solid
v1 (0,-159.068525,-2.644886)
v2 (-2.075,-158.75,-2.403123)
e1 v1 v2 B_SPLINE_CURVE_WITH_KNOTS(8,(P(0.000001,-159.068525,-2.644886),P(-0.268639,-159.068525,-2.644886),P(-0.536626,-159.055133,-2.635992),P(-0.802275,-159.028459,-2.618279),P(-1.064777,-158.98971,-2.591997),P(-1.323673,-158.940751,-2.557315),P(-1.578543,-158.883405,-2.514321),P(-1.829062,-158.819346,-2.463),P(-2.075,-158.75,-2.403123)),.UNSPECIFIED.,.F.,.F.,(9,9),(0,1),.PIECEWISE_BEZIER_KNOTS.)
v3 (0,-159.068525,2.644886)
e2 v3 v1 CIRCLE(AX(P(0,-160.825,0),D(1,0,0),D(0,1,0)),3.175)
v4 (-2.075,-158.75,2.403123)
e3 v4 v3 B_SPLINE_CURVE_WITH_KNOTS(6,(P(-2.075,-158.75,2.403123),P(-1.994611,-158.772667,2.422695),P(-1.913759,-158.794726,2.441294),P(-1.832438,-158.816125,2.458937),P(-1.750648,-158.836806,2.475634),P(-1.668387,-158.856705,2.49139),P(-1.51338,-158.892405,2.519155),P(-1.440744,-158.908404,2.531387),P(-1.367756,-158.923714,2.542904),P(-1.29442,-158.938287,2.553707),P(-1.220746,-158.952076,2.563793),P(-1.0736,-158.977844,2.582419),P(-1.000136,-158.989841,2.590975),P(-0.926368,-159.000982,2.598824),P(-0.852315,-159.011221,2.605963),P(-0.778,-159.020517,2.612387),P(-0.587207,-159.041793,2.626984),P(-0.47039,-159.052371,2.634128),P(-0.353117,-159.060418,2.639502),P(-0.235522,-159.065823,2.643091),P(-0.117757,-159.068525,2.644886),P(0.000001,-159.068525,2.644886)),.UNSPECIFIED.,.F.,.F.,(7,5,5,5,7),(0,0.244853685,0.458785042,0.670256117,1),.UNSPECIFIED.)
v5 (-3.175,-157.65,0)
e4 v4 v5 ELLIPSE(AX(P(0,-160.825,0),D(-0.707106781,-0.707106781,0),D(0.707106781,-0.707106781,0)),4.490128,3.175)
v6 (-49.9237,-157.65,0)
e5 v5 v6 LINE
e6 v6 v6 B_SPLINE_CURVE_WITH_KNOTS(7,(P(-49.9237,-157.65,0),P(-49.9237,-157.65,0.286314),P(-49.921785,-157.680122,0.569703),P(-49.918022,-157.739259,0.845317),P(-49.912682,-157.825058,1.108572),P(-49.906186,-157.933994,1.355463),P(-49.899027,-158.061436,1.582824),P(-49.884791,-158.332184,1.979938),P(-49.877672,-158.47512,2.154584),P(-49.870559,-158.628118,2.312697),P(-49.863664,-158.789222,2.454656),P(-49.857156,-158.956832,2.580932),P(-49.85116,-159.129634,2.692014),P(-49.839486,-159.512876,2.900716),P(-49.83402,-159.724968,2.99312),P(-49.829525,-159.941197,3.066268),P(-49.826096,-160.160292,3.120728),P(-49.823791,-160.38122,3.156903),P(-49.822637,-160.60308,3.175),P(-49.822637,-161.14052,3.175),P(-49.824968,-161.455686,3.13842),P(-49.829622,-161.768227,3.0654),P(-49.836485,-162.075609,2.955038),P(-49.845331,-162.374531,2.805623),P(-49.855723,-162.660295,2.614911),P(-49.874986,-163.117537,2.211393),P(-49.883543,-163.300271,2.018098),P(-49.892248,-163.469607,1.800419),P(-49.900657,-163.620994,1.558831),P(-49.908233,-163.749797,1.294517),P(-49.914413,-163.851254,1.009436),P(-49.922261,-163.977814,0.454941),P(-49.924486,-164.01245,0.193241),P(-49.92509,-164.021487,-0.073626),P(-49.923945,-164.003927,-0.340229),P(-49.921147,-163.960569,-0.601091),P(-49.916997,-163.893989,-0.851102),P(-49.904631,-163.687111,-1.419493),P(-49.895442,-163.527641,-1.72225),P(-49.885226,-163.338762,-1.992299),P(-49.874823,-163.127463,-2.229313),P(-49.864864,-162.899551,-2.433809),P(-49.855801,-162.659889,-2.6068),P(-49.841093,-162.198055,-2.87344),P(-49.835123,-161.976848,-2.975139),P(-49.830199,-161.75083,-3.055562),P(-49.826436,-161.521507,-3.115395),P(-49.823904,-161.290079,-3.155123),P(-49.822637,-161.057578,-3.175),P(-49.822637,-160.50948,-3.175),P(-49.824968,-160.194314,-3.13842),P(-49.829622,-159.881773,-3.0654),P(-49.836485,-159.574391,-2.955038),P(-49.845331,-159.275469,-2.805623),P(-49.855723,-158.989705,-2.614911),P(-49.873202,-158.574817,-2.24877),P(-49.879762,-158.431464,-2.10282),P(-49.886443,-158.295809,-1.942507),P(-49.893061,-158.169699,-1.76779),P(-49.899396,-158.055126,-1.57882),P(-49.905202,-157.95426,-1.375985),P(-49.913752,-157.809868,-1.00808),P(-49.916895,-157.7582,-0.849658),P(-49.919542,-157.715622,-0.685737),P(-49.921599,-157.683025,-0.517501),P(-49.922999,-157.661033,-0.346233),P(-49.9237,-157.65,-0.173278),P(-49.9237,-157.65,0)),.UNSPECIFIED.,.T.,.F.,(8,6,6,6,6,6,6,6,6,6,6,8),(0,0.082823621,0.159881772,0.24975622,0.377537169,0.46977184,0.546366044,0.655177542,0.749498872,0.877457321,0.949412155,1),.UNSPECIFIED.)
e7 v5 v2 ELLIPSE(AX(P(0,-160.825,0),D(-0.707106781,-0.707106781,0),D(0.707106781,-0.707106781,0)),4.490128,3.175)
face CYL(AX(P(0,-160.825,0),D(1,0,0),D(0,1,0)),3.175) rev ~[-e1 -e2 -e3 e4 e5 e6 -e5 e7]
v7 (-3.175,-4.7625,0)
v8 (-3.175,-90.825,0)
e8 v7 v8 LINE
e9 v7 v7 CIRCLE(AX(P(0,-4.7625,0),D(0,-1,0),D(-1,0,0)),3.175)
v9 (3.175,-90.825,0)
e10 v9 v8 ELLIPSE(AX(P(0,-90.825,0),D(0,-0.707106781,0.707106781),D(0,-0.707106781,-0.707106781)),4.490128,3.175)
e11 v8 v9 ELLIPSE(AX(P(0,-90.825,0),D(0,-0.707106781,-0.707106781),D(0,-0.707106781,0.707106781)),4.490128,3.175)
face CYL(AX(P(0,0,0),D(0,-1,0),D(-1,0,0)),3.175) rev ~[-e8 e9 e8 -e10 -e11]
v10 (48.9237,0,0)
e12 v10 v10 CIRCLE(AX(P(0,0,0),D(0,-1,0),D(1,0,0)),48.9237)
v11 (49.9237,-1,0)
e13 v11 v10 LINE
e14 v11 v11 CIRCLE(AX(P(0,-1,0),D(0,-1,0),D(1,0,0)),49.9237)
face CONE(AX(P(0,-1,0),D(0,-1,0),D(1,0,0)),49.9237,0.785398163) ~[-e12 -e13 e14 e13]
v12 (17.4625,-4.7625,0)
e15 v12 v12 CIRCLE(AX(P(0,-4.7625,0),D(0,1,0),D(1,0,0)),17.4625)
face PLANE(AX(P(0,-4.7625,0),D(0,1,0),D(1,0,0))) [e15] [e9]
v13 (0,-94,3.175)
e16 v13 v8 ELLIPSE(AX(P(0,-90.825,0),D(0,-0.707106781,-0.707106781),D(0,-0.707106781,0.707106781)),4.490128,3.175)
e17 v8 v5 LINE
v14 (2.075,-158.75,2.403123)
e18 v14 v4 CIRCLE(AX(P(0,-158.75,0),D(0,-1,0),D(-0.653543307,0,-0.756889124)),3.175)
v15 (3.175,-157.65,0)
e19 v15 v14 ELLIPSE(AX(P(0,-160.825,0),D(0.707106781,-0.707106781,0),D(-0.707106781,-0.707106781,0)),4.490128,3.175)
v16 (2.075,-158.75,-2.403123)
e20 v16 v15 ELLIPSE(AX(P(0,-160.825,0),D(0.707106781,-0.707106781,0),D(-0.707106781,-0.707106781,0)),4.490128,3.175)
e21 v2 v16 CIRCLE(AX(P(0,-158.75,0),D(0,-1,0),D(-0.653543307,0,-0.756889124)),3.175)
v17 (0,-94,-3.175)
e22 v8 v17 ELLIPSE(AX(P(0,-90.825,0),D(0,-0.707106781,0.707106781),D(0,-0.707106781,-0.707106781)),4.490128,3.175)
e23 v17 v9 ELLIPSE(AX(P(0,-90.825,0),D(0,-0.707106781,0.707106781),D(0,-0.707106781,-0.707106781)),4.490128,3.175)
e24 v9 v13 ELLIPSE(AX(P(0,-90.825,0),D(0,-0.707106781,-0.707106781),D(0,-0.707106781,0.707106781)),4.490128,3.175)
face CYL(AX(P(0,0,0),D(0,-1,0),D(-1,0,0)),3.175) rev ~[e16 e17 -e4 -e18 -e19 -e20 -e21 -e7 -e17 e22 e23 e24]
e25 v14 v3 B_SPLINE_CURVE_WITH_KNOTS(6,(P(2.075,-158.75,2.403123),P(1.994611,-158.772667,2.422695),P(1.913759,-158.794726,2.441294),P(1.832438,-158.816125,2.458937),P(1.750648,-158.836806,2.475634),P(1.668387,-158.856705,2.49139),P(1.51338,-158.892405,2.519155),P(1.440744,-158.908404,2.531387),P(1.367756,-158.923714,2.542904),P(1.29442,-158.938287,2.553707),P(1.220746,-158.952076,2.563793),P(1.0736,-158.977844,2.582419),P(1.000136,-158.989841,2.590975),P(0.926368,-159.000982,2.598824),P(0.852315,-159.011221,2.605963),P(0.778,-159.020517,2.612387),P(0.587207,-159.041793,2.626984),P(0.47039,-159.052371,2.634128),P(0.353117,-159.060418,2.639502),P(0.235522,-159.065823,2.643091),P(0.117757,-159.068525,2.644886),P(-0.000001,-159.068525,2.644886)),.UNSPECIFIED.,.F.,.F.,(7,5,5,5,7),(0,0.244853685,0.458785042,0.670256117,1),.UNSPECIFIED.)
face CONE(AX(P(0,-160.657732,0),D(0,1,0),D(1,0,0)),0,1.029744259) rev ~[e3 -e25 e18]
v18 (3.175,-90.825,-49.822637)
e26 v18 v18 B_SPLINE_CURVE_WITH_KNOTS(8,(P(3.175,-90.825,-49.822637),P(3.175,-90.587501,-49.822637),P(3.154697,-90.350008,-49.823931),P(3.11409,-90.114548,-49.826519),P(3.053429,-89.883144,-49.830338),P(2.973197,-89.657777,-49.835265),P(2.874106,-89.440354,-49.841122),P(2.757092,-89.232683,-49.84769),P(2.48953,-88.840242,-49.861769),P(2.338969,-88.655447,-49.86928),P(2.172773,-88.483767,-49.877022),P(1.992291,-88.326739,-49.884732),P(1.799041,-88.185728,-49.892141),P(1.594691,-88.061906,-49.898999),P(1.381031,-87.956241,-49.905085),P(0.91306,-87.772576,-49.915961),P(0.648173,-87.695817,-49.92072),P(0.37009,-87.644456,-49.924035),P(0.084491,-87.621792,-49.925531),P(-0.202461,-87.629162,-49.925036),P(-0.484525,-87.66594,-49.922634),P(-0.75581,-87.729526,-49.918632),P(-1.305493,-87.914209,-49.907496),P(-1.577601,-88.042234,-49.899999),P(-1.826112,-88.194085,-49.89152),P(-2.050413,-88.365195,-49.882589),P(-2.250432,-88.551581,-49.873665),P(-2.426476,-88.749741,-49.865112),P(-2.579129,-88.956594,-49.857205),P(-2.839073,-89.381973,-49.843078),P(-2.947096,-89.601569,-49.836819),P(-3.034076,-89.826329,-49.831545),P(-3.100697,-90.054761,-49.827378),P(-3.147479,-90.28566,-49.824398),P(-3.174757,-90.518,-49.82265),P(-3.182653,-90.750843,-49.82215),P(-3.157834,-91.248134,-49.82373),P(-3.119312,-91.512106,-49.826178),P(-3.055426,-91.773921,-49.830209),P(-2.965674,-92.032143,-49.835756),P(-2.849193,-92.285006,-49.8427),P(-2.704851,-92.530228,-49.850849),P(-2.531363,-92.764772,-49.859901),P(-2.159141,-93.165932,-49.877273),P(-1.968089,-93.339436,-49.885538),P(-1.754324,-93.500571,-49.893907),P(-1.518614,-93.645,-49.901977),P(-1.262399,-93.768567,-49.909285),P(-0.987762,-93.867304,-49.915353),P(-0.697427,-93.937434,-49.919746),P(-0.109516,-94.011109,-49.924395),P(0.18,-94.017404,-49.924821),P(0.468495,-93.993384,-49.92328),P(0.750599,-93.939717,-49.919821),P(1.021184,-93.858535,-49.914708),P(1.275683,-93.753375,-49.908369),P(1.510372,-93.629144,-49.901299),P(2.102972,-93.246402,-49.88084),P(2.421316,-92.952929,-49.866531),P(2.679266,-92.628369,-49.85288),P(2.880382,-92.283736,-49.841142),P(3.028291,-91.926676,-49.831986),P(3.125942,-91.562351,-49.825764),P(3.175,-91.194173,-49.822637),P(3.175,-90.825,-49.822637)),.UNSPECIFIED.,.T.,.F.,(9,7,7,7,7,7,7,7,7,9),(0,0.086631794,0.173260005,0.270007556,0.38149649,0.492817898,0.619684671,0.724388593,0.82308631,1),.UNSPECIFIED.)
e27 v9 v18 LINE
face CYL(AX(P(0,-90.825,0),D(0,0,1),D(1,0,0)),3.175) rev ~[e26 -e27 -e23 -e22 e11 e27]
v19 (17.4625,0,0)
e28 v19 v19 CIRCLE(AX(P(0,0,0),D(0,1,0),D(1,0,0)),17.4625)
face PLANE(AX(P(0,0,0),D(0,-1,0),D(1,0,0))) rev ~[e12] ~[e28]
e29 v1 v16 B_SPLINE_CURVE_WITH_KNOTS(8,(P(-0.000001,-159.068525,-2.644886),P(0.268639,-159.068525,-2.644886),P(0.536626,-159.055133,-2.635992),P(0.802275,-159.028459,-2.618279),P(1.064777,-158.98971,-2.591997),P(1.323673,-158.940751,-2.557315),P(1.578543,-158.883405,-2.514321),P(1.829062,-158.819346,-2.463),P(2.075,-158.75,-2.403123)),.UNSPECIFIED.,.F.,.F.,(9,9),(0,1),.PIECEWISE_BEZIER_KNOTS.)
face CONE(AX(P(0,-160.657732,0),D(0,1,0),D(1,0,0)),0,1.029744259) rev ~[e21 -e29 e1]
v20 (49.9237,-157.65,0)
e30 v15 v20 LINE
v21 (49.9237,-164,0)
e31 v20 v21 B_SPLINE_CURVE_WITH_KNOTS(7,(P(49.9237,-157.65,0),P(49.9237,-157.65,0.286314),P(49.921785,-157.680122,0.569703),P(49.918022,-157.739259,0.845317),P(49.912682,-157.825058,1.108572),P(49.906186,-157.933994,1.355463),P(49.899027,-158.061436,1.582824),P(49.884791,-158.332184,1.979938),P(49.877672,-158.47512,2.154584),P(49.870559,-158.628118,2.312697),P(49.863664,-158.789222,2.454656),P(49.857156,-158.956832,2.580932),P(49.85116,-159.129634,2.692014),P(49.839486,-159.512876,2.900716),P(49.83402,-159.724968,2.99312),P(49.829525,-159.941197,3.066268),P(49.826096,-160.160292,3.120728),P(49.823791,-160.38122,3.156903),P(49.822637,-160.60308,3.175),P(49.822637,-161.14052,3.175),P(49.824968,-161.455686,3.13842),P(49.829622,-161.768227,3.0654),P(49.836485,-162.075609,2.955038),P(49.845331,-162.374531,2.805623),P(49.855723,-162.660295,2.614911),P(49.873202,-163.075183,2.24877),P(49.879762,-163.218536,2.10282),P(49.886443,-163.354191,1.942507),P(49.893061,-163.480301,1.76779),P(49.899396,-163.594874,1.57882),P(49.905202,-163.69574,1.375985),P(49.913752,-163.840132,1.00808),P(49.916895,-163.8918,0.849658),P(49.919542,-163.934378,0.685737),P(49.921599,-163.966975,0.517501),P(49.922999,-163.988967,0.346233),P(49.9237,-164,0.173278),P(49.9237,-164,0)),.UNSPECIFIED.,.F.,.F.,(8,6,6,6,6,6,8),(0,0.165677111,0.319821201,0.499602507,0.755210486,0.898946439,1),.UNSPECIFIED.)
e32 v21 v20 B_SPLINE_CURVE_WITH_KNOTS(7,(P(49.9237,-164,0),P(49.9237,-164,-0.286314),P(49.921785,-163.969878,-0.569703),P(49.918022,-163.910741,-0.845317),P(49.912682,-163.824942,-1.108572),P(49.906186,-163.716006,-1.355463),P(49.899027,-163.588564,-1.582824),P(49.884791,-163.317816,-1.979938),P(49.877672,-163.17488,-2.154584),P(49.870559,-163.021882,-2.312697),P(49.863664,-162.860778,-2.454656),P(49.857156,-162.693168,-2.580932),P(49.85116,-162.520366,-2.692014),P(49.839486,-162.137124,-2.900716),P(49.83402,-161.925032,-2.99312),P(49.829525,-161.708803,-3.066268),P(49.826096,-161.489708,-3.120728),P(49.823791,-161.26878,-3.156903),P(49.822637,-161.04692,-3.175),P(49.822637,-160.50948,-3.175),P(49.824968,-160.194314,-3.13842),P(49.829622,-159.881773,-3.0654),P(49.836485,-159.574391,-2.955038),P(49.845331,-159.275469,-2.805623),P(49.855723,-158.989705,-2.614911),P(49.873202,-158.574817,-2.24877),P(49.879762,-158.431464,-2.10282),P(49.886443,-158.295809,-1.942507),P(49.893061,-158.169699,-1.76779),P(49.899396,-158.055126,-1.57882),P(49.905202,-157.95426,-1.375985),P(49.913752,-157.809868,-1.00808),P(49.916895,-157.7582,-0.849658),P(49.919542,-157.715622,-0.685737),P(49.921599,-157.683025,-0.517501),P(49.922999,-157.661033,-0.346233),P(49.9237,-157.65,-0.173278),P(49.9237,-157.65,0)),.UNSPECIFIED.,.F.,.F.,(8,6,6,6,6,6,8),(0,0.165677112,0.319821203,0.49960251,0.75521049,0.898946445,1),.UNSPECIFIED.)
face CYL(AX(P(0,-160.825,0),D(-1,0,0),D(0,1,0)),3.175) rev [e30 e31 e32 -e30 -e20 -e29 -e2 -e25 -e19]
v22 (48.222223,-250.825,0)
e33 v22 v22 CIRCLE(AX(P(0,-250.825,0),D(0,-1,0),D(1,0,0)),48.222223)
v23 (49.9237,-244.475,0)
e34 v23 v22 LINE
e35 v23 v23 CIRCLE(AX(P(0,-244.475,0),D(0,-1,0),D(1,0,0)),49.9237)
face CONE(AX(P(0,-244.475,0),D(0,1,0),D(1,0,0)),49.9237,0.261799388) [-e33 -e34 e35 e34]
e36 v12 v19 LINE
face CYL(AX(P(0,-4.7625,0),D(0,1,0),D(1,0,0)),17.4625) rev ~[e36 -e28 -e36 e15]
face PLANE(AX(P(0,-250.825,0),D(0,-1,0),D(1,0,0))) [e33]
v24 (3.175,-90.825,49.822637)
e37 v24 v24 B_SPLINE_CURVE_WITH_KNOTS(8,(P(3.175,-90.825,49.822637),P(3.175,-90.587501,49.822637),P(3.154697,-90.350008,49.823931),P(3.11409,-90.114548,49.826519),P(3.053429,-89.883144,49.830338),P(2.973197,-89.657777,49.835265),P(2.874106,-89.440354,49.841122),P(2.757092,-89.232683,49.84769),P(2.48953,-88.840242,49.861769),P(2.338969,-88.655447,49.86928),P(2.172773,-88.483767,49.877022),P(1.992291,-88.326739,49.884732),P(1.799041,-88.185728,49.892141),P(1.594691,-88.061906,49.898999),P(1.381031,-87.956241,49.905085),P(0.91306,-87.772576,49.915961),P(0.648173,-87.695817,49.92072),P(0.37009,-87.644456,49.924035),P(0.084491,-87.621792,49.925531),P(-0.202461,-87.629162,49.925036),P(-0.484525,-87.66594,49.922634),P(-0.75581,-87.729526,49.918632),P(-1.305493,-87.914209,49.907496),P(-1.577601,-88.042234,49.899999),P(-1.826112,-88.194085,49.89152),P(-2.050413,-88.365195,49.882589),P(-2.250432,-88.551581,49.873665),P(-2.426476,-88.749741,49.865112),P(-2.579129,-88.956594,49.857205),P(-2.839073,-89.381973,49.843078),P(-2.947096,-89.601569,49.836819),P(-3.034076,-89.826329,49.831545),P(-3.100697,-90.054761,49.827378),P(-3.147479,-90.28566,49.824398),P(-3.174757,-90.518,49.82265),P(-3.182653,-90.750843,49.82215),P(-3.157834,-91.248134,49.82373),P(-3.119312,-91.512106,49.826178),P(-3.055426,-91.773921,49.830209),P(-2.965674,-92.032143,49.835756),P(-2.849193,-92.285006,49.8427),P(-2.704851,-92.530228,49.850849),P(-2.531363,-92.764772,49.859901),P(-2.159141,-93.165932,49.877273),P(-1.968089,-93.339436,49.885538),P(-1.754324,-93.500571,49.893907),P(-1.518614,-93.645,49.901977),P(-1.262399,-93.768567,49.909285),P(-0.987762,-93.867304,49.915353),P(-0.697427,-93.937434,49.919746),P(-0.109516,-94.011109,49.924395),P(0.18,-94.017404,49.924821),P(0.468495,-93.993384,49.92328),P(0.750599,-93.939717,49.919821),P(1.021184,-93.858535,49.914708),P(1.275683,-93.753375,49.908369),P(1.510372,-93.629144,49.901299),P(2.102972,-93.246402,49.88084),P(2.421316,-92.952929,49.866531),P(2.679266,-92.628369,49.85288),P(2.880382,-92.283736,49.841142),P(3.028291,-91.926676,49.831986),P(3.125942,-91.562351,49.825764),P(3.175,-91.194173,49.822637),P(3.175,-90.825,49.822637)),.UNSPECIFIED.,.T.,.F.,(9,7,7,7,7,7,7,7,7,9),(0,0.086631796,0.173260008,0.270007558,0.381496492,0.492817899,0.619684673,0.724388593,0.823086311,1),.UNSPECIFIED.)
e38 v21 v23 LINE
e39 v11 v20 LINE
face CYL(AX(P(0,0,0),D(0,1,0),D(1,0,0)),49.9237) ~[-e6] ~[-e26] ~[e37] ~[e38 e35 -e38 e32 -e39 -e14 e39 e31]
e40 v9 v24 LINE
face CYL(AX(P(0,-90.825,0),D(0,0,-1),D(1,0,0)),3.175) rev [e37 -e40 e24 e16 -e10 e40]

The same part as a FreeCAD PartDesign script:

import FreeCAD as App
import Part
import Sketcher

V = App.Vector
Q = App.Units.Quantity


def edges_at(feature, points):
    """Names of the edges that pass closest to the given points."""
    edges = feature.Shape.Edges
    near = lambda p: min(range(len(edges)), key=lambda i: edges[i].distToShape(Part.Vertex(*p))[0])
    return sorted({f"Edge{near(p) + 1}" for p in points})

doc = App.newDocument("Part")
params = doc.addObject("Spreadsheet::Sheet", "Params")
for row, (alias, value) in enumerate([
    ("sketch1_diameter", "3.931 in"),
    ("pad1_length", "9.875 in"),
    ("chamfer_size", "0.25 in"),
    ("chamfer_size2", "1.701477 mm"),
    ("sketch2_diameter", "0.25 in"),
    ("hole_diameter", "0.25 in"),
    ("hole_depth", "6.25 in"),
    ("hole_cbore_diameter", "1.375 in"),
    ("hole_cbore_depth", "0.1875 in"),
    ("sketch3_diameter", "0.25 in"),
    ("sketch4_diameter", "0.25 in"),
    ("chamfer2_size", "1 mm"),
], start=1):
    params.set(f"A{row}", alias)
    params.set(f"B{row}", "=" + value)
    params.setAlias(f"B{row}", alias)

body = doc.addObject("PartDesign::Body", "Body")

sketch1 = body.newObject("Sketcher::SketchObject", "Sketch")
sketch1.AttachmentSupport = (doc.getObject("XZ_Plane"), [""])
sketch1.MapMode = "FlatFace"
sketch1.addGeometry(Part.Circle(V(0, 0, 0), V(0, 0, 1), 49.9237), False)
sketch1.addConstraint(Sketcher.Constraint("Coincident", 0, 3, -1, 1))
sketch1.addConstraint(Sketcher.Constraint("Diameter", 0, Q("3.931 in")))
sketch1.setExpression("Constraints[1]", "Params.sketch1_diameter")
pad1 = body.newObject("PartDesign::Pad", "Pad")
pad1.Profile = sketch1
pad1.setExpression("Length", "Params.pad1_length")
doc.recompute()

chamfer = body.newObject("PartDesign::Chamfer", "Chamfer")
chamfer.Base = (pad1, edges_at(pad1, [(-49.924, -250.825, 0)]))
chamfer.ChamferType = "Two distances"
chamfer.setExpression("Size", "Params.chamfer_size")
chamfer.setExpression("Size2", "Params.chamfer_size2")

sketch2 = body.newObject("Sketcher::SketchObject", "Sketch001")
sketch2.AttachmentSupport = (doc.getObject("XZ_Plane"), [""])
sketch2.MapMode = "FlatFace"
sketch2.addGeometry(Part.Circle(V(0, 0, 0), V(0, 0, 1), 3.175), False)
sketch2.addConstraint(Sketcher.Constraint("Coincident", 0, 3, -1, 1))
sketch2.addConstraint(Sketcher.Constraint("Diameter", 0, Q("0.25 in")))
sketch2.setExpression("Constraints[1]", "Params.sketch2_diameter")
doc.recompute()
hole = body.newObject("PartDesign::Hole", "Hole")
hole.Profile = sketch2
hole.ThreadType = "None"
hole.setExpression("Diameter", "Params.hole_diameter")
hole.DepthType = "Dimension"
hole.setExpression("Depth", "Params.hole_depth")
hole.DrillPoint = "Angled"
hole.DrillPointAngle = 118
hole.HoleCutType = "Counterbore"
hole.setExpression("HoleCutDiameter", "Params.hole_cbore_diameter")
hole.setExpression("HoleCutDepth", "Params.hole_cbore_depth")
hole.Reversed = True

sketch3 = body.newObject("Sketcher::SketchObject", "Sketch002")
sketch3.AttachmentSupport = (doc.getObject("YZ_Plane"), [""])
sketch3.MapMode = "FlatFace"
sketch3.addGeometry(Part.Circle(V(-160.825, 0, 0), V(0, 0, 1), 3.175), False)
sketch3.addConstraint(Sketcher.Constraint("PointOnObject", 0, 3, -1))
sketch3.addConstraint(Sketcher.Constraint("Diameter", 0, Q("0.25 in")))
sketch3.addConstraint(Sketcher.Constraint("DistanceX", 0, 3, -1, 1, Q("160.825 mm")))
sketch3.setExpression("Constraints[1]", "Params.sketch3_diameter")
pocket1 = body.newObject("PartDesign::Pocket", "Pocket")
pocket1.Profile = sketch3
pocket1.Type = "ThroughAll"
pocket1.Midplane = True

sketch4 = body.newObject("Sketcher::SketchObject", "Sketch003")
sketch4.AttachmentSupport = (doc.getObject("XY_Plane"), [""])
sketch4.MapMode = "FlatFace"
sketch4.addGeometry(Part.Circle(V(0, -90.825, 0), V(0, 0, 1), 3.175), False)
sketch4.addConstraint(Sketcher.Constraint("PointOnObject", 0, 3, -2))
sketch4.addConstraint(Sketcher.Constraint("Diameter", 0, Q("0.25 in")))
sketch4.addConstraint(Sketcher.Constraint("DistanceY", 0, 3, -1, 1, Q("90.825 mm")))
sketch4.setExpression("Constraints[1]", "Params.sketch4_diameter")
pocket2 = body.newObject("PartDesign::Pocket", "Pocket001")
pocket2.Profile = sketch4
pocket2.Type = "ThroughAll"
pocket2.Midplane = True
doc.recompute()

chamfer2 = body.newObject("PartDesign::Chamfer", "Chamfer001")
chamfer2.Base = (pocket2, edges_at(pocket2, [(-49.924, 0, 0)]))
chamfer2.setExpression("Size", "Params.chamfer2_size")

doc.recompute()
